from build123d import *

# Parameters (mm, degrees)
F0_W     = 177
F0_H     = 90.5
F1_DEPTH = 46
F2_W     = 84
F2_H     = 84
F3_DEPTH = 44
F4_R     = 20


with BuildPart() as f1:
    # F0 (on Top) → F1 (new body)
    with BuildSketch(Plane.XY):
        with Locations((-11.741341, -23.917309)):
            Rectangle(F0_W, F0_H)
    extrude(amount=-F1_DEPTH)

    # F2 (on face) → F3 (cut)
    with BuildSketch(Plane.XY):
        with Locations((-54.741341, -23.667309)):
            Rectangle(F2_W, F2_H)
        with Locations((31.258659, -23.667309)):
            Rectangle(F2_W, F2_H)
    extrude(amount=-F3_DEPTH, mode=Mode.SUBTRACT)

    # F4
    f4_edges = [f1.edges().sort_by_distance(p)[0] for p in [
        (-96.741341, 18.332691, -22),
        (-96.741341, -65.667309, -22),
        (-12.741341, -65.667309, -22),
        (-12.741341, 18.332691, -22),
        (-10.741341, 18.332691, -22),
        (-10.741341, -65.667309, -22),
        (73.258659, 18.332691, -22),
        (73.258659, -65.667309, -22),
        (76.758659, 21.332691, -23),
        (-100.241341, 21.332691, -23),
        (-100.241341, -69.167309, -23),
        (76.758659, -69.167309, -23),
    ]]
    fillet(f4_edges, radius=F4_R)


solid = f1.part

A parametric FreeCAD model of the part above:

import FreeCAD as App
import Part
import Sketcher
from FreeCAD import Vector
Q = App.Units.Quantity


def edges_at(feature, points):
    """Names of the edges that pass closest to the given points."""
    edges = feature.Shape.Edges
    near = lambda p: min(range(len(edges)), key=lambda i: edges[i].distToShape(Part.Vertex(*p))[0])
    return sorted({f"Edge{near(p) + 1}" for p in points})


def add_polygon(sketch, points):
    """Adds a closed chain of lines whose ends are joined by coincident constraints."""
    first, n = sketch.GeometryCount, len(points)
    for a, b in zip(points, points[1:] + points[:1]):
        sketch.addGeometry(Part.LineSegment(App.Vector(*a, 0), App.Vector(*b, 0)), False)
    for i in range(n):
        sketch.addConstraint(Sketcher.Constraint("Coincident", first + i, 2, first + (i + 1) % n, 1))

doc = App.newDocument("Part")
body = doc.addObject("PartDesign::Body", "Body")

sketch1 = body.newObject("Sketcher::SketchObject", "Sketch")
sketch1.AttachmentSupport = (doc.getObject("XY_Plane"), [""])
sketch1.MapMode = "FlatFace"
add_polygon(sketch1, [(-100.241341, 21.332691), (-100.241341, -69.167309), (76.758659, -69.167309), (76.758659, 21.332691)])
sketch1.addConstraint([
    Sketcher.Constraint("Vertical", 0),
    Sketcher.Constraint("Horizontal", 1),
    Sketcher.Constraint("Vertical", 2),
    Sketcher.Constraint("Horizontal", 3),
    Sketcher.Constraint("DistanceX", 1, 1, 1, 2, Q("177 mm")),
    Sketcher.Constraint("DistanceY", 0, 2, 0, 1, Q("90.5 mm")),
    Sketcher.Constraint("DistanceX", 0, 2, -1, 1, Q("100.241341 mm")),
    Sketcher.Constraint("DistanceY", 0, 2, -1, 1, Q("69.167309 mm")),
])
pad1 = body.newObject("PartDesign::Pad", "Pad")
pad1.Profile = sketch1
pad1.Length = 46
pad1.Reversed = True

sketch2 = body.newObject("Sketcher::SketchObject", "Sketch001")
sketch2.AttachmentSupport = (doc.getObject("XY_Plane"), [""])
sketch2.MapMode = "FlatFace"
add_polygon(sketch2, [(-96.741341, 18.332691), (-96.741341, -65.667309), (-12.741341, -65.667309), (-12.741341, 18.332691)])
add_polygon(sketch2, [(-10.741341, 18.332691), (-10.741341, -65.667309), (73.258659, -65.667309), (73.258659, 18.332691)])
sketch2.addConstraint([
    Sketcher.Constraint("Vertical", 0),
    Sketcher.Constraint("Horizontal", 1),
    Sketcher.Constraint("Vertical", 2),
    Sketcher.Constraint("Horizontal", 3),
    Sketcher.Constraint("Vertical", 4),
    Sketcher.Constraint("Horizontal", 5),
    Sketcher.Constraint("Vertical", 6),
    Sketcher.Constraint("Horizontal", 7),
    Sketcher.Constraint("Horizontal", 1, 2, 4, 2),
    Sketcher.Constraint("Horizontal", 3, 2, 6, 2),
    Sketcher.Constraint("Equal", 3, 5),
    Sketcher.Constraint("Equal", 7, 0),
    Sketcher.Constraint("DistanceX", 1, 1, 1, 2, Q("84 mm")),
    Sketcher.Constraint("DistanceX", 1, 2, 4, 2, Q("2 mm")),
    Sketcher.Constraint("DistanceX", 0, 2, -1, 1, Q("96.741341 mm")),
    Sketcher.Constraint("DistanceY", 0, 2, -1, 1, Q("65.667309 mm")),
])
pocket1 = body.newObject("PartDesign::Pocket", "Pocket")
pocket1.Profile = sketch2
pocket1.Length = 44
doc.recompute()

fillet = body.newObject("PartDesign::Fillet", "Fillet")
fillet.Base = (pocket1, edges_at(pocket1, [
    (-96.741, 18.333, -22),
    (-96.741, -65.667, -22),
    (-12.741, -65.667, -22),
    (-12.741, 18.333, -22),
    (-10.741, 18.333, -22),
    (-10.741, -65.667, -22),
    (73.259, 18.333, -22),
    (73.259, -65.667, -22),
    (76.759, 21.333, -23),
    (-100.241, 21.333, -23),
    (-100.241, -69.167, -23),
    (76.759, -69.167, -23),
]))
fillet.Radius = 20

doc.recompute()
